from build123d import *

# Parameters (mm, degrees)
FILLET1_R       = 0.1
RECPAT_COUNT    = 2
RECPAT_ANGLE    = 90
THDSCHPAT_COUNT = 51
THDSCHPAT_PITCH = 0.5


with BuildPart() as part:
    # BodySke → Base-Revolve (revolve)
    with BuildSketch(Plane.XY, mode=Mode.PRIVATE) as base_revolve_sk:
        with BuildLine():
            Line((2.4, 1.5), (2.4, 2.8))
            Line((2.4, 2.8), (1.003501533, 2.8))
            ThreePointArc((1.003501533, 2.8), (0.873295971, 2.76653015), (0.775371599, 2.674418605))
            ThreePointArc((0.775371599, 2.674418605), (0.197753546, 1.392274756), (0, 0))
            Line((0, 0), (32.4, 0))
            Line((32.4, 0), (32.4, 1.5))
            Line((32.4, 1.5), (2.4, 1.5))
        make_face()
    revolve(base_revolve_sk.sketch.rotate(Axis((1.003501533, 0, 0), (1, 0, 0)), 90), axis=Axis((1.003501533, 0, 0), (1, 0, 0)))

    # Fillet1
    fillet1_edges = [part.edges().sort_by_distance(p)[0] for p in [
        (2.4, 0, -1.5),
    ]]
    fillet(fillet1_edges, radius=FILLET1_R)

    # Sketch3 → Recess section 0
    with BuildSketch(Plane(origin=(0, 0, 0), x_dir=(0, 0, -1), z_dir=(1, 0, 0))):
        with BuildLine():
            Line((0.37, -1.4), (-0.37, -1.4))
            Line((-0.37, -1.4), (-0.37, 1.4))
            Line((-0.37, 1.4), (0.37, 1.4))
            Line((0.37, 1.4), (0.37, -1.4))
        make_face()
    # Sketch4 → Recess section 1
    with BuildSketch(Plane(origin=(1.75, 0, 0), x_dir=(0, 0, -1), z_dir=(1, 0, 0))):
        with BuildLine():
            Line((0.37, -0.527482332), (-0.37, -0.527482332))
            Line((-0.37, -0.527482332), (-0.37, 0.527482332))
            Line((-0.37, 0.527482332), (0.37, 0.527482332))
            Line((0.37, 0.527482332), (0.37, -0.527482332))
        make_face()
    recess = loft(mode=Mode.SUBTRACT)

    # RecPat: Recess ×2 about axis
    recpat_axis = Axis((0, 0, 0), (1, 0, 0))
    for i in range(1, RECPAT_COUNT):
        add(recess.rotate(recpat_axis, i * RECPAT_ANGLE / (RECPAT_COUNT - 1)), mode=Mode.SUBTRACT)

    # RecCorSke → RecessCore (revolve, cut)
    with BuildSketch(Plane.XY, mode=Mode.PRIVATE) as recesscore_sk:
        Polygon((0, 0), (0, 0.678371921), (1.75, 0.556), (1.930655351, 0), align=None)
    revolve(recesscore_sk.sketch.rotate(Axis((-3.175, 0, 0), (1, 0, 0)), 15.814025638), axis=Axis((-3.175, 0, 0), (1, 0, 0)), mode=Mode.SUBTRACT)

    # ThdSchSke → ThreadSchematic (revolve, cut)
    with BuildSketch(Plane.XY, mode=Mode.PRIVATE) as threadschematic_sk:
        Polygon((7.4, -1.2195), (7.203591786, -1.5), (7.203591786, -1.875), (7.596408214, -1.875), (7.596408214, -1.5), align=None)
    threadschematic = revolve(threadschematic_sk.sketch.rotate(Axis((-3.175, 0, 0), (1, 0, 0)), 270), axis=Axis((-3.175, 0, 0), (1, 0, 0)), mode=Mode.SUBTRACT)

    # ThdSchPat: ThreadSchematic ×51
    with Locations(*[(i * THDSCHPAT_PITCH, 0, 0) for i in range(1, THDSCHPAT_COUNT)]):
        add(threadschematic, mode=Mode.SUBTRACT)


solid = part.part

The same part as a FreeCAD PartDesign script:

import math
import FreeCAD as App
import Part
import Sketcher
Q = App.Units.Quantity


def edges_at(feature, points):
    """Names of the edges that pass closest to the given points."""
    edges = feature.Shape.Edges
    near = lambda p: min(range(len(edges)), key=lambda i: edges[i].distToShape(Part.Vertex(*p))[0])
    return sorted({f"Edge{near(p) + 1}" for p in points})


def add_polygon(sketch, points):
    """Adds a closed chain of lines whose ends are joined by coincident constraints."""
    first, n = sketch.GeometryCount, len(points)
    for a, b in zip(points, points[1:] + points[:1]):
        sketch.addGeometry(Part.LineSegment(App.Vector(*a, 0), App.Vector(*b, 0)), False)
    for i in range(n):
        sketch.addConstraint(Sketcher.Constraint("Coincident", first + i, 2, first + (i + 1) % n, 1))

doc = App.newDocument("Part")
body = doc.addObject("PartDesign::Body", "Body")

# Sketch on XY plane
sketch1 = body.newObject("Sketcher::SketchObject", "Sketch")
sketch1.AttachmentSupport = (doc.getObject("XY_Plane"), [""])
sketch1.MapMode = "FlatFace"
sketch1.addGeometry(Part.LineSegment(App.Vector(2.4, 1.5, 0), App.Vector(2.4, 2.8, 0)), False)
sketch1.addGeometry(Part.LineSegment(App.Vector(2.4, 2.8, 0), App.Vector(1, 2.8, 0)), False)
sketch1.addGeometry(Part.ArcOfCircle(Part.Circle(App.Vector(1, 2.53, 0), App.Vector(0, 0, 1), 0.27), math.radians(90), math.radians(148)), False)
sketch1.addGeometry(Part.ArcOfCircle(Part.Circle(App.Vector(5, 0, 0), App.Vector(0, 0, 1), 5), math.radians(148), math.radians(180)), False)
sketch1.addGeometry(Part.LineSegment(App.Vector(0, 0, 0), App.Vector(32.4, 0, 0)), False)
sketch1.addGeometry(Part.LineSegment(App.Vector(32.4, 0, 0), App.Vector(32.4, 1.5, 0)), False)
sketch1.addGeometry(Part.LineSegment(App.Vector(32.4, 1.5, 0), App.Vector(2.4, 1.5, 0)), False)
sketch1.addConstraint(Sketcher.Constraint("Coincident", 0, 2, 1, 1))
sketch1.addConstraint(Sketcher.Constraint("Tangent", 1, 2, 2, 1))
sketch1.addConstraint(Sketcher.Constraint("Tangent", 2, 2, 3, 1))
sketch1.addConstraint(Sketcher.Constraint("Coincident", 3, 2, 4, 1))
sketch1.addConstraint(Sketcher.Constraint("Coincident", 4, 2, 5, 1))
sketch1.addConstraint(Sketcher.Constraint("Coincident", 5, 2, 6, 1))
sketch1.addConstraint(Sketcher.Constraint("Coincident", 6, 2, 0, 1))
sketch1.addConstraint(Sketcher.Constraint("Vertical", 0))
sketch1.addConstraint(Sketcher.Constraint("Horizontal", 1))
sketch1.addConstraint(Sketcher.Constraint("Horizontal", 4))
sketch1.addConstraint(Sketcher.Constraint("Vertical", 5))
sketch1.addConstraint(Sketcher.Constraint("Horizontal", 6))
sketch1.addConstraint(Sketcher.Constraint("Coincident", 3, 2, -1, 1))
sketch1.addConstraint(Sketcher.Constraint("PointOnObject", 3, 3, -1))
sketch1.addConstraint(Sketcher.Constraint("Radius", 3, Q("5 mm")))
sketch1.addConstraint(Sketcher.Constraint("DistanceX", 6, 2, 6, 1, Q("30 mm")))
sketch1.addConstraint(Sketcher.Constraint("Radius", 2, Q("0.27 mm")))
sketch1.addConstraint(Sketcher.Constraint("DistanceX", 4, 1, 4, 2, Q("32.4 mm")))
sketch1.addConstraint(Sketcher.Constraint("DistanceY", 0, 1, 0, 2, Q("1.3 mm")))
sketch1.addConstraint(Sketcher.Constraint("DistanceY", 5, 1, 5, 2, Q("1.5 mm")))
revolution = body.newObject("PartDesign::Revolution", "Revolution")
revolution.Profile = sketch1
revolution.ReferenceAxis = (sketch1, ["H_Axis"])
revolution.Angle = 360
doc.recompute()

fillet = body.newObject("PartDesign::Fillet", "Fillet")
fillet.Base = (revolution, edges_at(revolution, [(2.4, 0, -1.5)]))
fillet.Radius = 0.1

# Sketch on YZ plane
sketch2 = body.newObject("Sketcher::SketchObject", "Sketch001")
sketch2.AttachmentSupport = (doc.getObject("YZ_Plane"), [""])
sketch2.MapMode = "FlatFace"
add_polygon(sketch2, [(-1.4, 0.4), (-1.4, -0.4), (1.4, -0.4), (1.4, 0.4)])  # lines 0-3
sketch2.addConstraint(Sketcher.Constraint("Vertical", 0))
sketch2.addConstraint(Sketcher.Constraint("Horizontal", 1))
sketch2.addConstraint(Sketcher.Constraint("Vertical", 2))
sketch2.addConstraint(Sketcher.Constraint("Horizontal", 3))
sketch2.addConstraint(Sketcher.Constraint("Symmetric", 0, 2, 2, 2, -1, 1))
sketch2.addConstraint(Sketcher.Constraint("DistanceX", 1, 1, 1, 2, Q("2.8 mm")))
sketch2.addConstraint(Sketcher.Constraint("DistanceY", 0, 2, 0, 1, Q("0.74 mm")))

# Sketch on YZ plane
sketch3 = body.newObject("Sketcher::SketchObject", "Sketch002")
sketch3.AttachmentSupport = (doc.getObject("YZ_Plane"), [""])
sketch3.MapMode = "FlatFace"
sketch3.AttachmentOffset = App.Placement(App.Vector(0, 0, 1.75), App.Rotation())
add_polygon(sketch3, [(-0.5, 0.4), (-0.5, -0.4), (0.5, -0.4), (0.5, 0.4)])  # lines 0-3
sketch3.addConstraint(Sketcher.Constraint("Vertical", 0))
sketch3.addConstraint(Sketcher.Constraint("Horizontal", 1))
sketch3.addConstraint(Sketcher.Constraint("Vertical", 2))
sketch3.addConstraint(Sketcher.Constraint("Horizontal", 3))
sketch3.addConstraint(Sketcher.Constraint("Symmetric", 0, 2, 2, 2, -1, 1))
sketch3.addConstraint(Sketcher.Constraint("DistanceY", 0, 2, 0, 1, Q("0.74 mm")))
sketch3.addConstraint(Sketcher.Constraint("DistanceX", 1, 1, 1, 2, Q("1.054965 mm")))

subtractiveloft = body.newObject("PartDesign::SubtractiveLoft", "SubtractiveLoft")
subtractiveloft.Profile = sketch2
subtractiveloft.Sections = [sketch3]
doc.recompute()

polarpattern = body.newObject("PartDesign::PolarPattern", "PolarPattern")
polarpattern.Originals = [subtractiveloft]
polarpattern.Axis = (doc.getObject("X_Axis"), [""])
polarpattern.Angle = 90
polarpattern.Occurrences = 2
body.Tip = polarpattern

# Sketch on XY plane
sketch4 = body.newObject("Sketcher::SketchObject", "Sketch003")
sketch4.AttachmentSupport = (doc.getObject("XY_Plane"), [""])
sketch4.MapMode = "FlatFace"
add_polygon(sketch4, [(0, 0.7), (0, 0), (1.9, 0), (1.8, 0.6)])  # lines 0-3
sketch4.addConstraint(Sketcher.Constraint("Vertical", 0))
sketch4.addConstraint(Sketcher.Constraint("Horizontal", 1))
sketch4.addConstraint(Sketcher.Constraint("Coincident", 0, 2, -1, 1))
sketch4.addConstraint(Sketcher.Constraint("Angle", 2, Q("108 deg")))
sketch4.addConstraint(Sketcher.Constraint("Angle", 3, Q("176 deg")))
sketch4.addConstraint(Sketcher.Constraint("DistanceX", -1, 1, 2, 2, Q("1.75 mm")))
sketch4.addConstraint(Sketcher.Constraint("DistanceY", -1, 1, 2, 2, Q("0.556 mm")))
groove = body.newObject("PartDesign::Groove", "Groove")
groove.Profile = sketch4
groove.ReferenceAxis = (sketch4, ["H_Axis"])
groove.Angle = 360

# Sketch on XY plane
sketch5 = body.newObject("Sketcher::SketchObject", "Sketch004")
sketch5.AttachmentSupport = (doc.getObject("XY_Plane"), [""])
sketch5.MapMode = "FlatFace"
add_polygon(sketch5, [(7.4, -1.22), (7.2, -1.5), (7.2, -1.88), (7.6, -1.88), (7.6, -1.5)])  # lines 0-4
sketch5.addConstraint(Sketcher.Constraint("Vertical", 1))
sketch5.addConstraint(Sketcher.Constraint("Horizontal", 2))
sketch5.addConstraint(Sketcher.Constraint("Vertical", 3))
sketch5.addConstraint(Sketcher.Constraint("Horizontal", 0, 2, 3, 2))
sketch5.addConstraint(Sketcher.Constraint("Equal", 0, 4))
sketch5.addConstraint(Sketcher.Constraint("Angle", 0, Q("-125 deg")))
sketch5.addConstraint(Sketcher.Constraint("DistanceY", 0, 2, -1, 1, Q("1.5 mm")))
sketch5.addConstraint(Sketcher.Constraint("DistanceX", -1, 1, 4, 2, Q("7.4 mm")))
sketch5.addConstraint(Sketcher.Constraint("DistanceY", 1, 2, 1, 1, Q("0.375 mm")))
sketch5.addConstraint(Sketcher.Constraint("DistanceY", 4, 2, -1, 1, Q("1.2195 mm")))
groove2 = body.newObject("PartDesign::Groove", "Groove001")
groove2.Profile = sketch5
groove2.ReferenceAxis = (sketch5, ["H_Axis"])
groove2.Angle = 360
doc.recompute()

linearpattern = body.newObject("PartDesign::LinearPattern", "LinearPattern")
linearpattern.Originals = [groove2]
linearpattern.Direction = (doc.getObject("X_Axis"), [""])
linearpattern.Mode = "offset"
linearpattern.Offset = 0.5
linearpattern.Occurrences = 51
body.Tip = linearpattern

doc.recompute()
